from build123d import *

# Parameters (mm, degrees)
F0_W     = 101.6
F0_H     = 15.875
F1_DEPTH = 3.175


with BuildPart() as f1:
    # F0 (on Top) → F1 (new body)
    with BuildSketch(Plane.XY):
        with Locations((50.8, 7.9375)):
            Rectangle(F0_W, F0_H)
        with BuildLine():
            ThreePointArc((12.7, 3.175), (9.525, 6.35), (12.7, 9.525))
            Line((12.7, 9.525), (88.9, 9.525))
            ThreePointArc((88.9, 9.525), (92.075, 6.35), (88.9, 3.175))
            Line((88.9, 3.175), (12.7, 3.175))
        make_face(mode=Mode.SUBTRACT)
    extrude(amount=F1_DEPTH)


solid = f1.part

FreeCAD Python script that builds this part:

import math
import FreeCAD as App
import Part
import Sketcher
from FreeCAD import Vector
Q = App.Units.Quantity

doc = App.newDocument("Part")
params = doc.addObject("Spreadsheet::Sheet", "Params")
for row, (alias, value) in enumerate([
    ("sketch1_width", "4 in"),
    ("sketch1_width2", "3 in"),
    ("sketch1_radius", "0.125 in"),
    ("sketch1_height", "0.625 in"),
    ("pad1_length", "0.125 in"),
], start=1):
    params.set(f"A{row}", alias)
    params.set(f"B{row}", "=" + value)
    params.setAlias(f"B{row}", alias)

body = doc.addObject("PartDesign::Body", "Body")

# Sketch on XY plane
sketch1 = body.newObject("Sketcher::SketchObject", "Sketch")
sketch1.AttachmentSupport = (doc.getObject("XY_Plane"), [""])
sketch1.MapMode = "FlatFace"
sketch1.addGeometry([
    Part.LineSegment(Vector(0, 15.9, 0), Vector(0, 0, 0)),  # 0
    Part.LineSegment(Vector(0, 0, 0), Vector(101.6, 0, 0)),  # 1
    Part.LineSegment(Vector(101.6, 0, 0), Vector(101.6, 15.9, 0)),  # 2
    Part.LineSegment(Vector(101.6, 15.9, 0), Vector(0, 15.9, 0)),  # 3
    Part.LineSegment(Vector(88.9, 3.2, 0), Vector(12.7, 3.2, 0)),  # 4
    Part.ArcOfCircle(Part.Circle(Vector(12.7, 6.3, 0), Vector(0, 0, 1), 3.2), math.radians(90), math.radians(270)),  # 5
    Part.LineSegment(Vector(12.7, 9.5, 0), Vector(88.9, 9.5, 0)),  # 6
    Part.ArcOfCircle(Part.Circle(Vector(88.9, 6.3, 0), Vector(0, 0, 1), 3.2), math.radians(-90), math.radians(90)),  # 7
], False)
sketch1.addConstraint([
    Sketcher.Constraint("Coincident", 0, 2, 1, 1),
    Sketcher.Constraint("Coincident", 1, 2, 2, 1),
    Sketcher.Constraint("Coincident", 2, 2, 3, 1),
    Sketcher.Constraint("Coincident", 3, 2, 0, 1),
    Sketcher.Constraint("Tangent", 4, 2, 5, 2),
    Sketcher.Constraint("Tangent", 5, 1, 6, 1),
    Sketcher.Constraint("Tangent", 6, 2, 7, 2),
    Sketcher.Constraint("Tangent", 7, 1, 4, 1),
    Sketcher.Constraint("Vertical", 0),
    Sketcher.Constraint("Horizontal", 1),
    Sketcher.Constraint("Vertical", 2),
    Sketcher.Constraint("Horizontal", 3),
    Sketcher.Constraint("Horizontal", 4),
    Sketcher.Constraint("Horizontal", 6),
    Sketcher.Constraint("Coincident", 0, 2, -1, 1),
    Sketcher.Constraint("DistanceX", 1, 1, 1, 2, Q("4 in")),
    Sketcher.Constraint("DistanceX", 4, 2, 4, 1, Q("3 in")),
    Sketcher.Constraint("Radius", 5, Q("0.125 in")),
    Sketcher.Constraint("DistanceX", -1, 1, 5, 3, Q("0.5 in")),
    Sketcher.Constraint("DistanceY", 4, 2, 3, 2, Q("0.5 in")),
    Sketcher.Constraint("DistanceY", 0, 2, 0, 1, Q("0.625 in")),
])
sketch1.setExpression("Constraints[15]", "Params.sketch1_width")
sketch1.setExpression("Constraints[16]", "Params.sketch1_width2")
sketch1.setExpression("Constraints[17]", "Params.sketch1_radius")
sketch1.setExpression("Constraints[20]", "Params.sketch1_height")
pad1 = body.newObject("PartDesign::Pad", "Pad")
pad1.Profile = sketch1
pad1.setExpression("Length", "Params.pad1_length")

doc.recompute()
